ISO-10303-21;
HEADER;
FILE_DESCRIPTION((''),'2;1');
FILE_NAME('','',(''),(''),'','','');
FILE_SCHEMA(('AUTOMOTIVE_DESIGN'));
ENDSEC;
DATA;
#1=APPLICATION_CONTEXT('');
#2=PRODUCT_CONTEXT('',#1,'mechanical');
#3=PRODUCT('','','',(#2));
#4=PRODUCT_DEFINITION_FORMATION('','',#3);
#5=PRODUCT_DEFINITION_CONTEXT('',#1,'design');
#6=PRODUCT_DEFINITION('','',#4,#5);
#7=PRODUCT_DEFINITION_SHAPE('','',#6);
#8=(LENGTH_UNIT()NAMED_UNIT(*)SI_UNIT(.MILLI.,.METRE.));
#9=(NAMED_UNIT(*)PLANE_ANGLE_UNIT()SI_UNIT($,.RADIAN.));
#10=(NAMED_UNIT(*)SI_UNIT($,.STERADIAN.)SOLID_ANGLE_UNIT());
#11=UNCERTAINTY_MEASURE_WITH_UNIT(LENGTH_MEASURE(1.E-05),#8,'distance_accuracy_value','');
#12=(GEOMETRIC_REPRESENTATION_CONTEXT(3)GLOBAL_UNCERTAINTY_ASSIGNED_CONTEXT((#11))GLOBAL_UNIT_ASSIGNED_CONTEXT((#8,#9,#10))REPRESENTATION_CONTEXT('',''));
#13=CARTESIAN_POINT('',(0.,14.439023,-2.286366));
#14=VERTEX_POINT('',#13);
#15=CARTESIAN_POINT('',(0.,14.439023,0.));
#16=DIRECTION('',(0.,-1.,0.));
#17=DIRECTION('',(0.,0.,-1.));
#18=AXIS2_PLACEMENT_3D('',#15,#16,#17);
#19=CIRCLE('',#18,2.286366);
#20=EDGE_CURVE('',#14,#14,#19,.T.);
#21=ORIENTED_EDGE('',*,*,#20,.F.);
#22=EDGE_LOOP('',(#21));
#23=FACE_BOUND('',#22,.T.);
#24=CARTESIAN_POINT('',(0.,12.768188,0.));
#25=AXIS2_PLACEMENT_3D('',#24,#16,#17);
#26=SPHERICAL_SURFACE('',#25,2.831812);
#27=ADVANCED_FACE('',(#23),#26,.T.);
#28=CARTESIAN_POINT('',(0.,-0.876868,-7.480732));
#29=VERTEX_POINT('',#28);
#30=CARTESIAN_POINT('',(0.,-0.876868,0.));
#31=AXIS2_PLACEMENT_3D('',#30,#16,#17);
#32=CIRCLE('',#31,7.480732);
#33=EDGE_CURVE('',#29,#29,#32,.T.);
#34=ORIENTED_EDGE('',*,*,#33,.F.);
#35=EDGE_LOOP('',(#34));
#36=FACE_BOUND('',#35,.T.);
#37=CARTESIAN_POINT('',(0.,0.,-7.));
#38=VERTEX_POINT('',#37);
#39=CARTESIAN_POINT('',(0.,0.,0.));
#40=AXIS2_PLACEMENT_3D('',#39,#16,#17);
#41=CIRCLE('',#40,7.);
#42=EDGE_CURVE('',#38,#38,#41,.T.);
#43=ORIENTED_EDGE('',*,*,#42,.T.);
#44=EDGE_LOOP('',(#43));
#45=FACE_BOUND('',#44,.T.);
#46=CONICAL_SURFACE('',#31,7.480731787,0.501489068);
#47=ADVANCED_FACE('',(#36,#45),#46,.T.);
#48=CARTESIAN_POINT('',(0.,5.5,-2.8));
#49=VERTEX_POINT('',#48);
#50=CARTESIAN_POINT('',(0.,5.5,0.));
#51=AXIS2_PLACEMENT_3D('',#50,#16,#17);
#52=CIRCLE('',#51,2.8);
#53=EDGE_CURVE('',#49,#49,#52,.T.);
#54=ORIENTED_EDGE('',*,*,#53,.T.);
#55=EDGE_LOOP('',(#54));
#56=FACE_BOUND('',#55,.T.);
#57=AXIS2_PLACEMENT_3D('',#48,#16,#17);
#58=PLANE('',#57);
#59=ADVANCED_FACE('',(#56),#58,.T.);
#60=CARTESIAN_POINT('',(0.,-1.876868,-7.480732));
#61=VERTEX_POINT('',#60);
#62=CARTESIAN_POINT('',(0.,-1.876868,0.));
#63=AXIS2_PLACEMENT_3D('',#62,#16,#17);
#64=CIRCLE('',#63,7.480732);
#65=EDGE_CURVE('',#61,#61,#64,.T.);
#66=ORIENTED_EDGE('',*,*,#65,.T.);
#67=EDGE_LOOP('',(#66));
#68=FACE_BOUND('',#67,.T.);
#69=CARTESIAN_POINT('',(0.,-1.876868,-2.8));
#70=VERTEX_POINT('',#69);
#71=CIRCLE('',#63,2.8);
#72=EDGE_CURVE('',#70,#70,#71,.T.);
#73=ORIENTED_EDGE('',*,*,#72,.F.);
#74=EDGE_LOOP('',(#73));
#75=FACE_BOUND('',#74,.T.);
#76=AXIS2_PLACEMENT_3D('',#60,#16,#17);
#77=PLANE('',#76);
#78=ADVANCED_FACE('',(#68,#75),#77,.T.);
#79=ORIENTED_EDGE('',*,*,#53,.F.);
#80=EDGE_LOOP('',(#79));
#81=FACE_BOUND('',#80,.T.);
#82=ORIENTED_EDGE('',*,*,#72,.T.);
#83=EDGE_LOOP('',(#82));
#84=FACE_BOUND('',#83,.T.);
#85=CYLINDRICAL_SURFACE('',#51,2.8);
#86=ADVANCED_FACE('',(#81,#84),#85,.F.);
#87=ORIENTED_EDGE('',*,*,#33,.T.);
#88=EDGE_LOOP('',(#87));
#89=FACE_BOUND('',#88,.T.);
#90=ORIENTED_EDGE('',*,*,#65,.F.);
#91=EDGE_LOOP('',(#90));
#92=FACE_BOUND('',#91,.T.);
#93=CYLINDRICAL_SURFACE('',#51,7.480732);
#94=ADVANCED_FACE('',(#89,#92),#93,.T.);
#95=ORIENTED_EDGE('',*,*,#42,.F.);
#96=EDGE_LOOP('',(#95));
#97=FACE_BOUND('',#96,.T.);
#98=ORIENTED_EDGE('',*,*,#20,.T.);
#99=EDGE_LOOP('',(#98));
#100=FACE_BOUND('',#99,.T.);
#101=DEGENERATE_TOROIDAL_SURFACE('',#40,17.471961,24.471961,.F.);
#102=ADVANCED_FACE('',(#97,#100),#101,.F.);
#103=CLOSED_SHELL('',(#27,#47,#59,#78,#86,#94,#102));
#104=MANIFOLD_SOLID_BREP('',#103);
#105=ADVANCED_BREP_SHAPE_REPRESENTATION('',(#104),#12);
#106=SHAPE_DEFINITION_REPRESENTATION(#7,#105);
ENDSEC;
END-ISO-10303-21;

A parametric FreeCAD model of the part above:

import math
import FreeCAD as App
import Part
import Sketcher

V = App.Vector

doc = App.newDocument("Part")
body = doc.addObject("PartDesign::Body", "Body")

sketch1 = doc.addObject("Sketcher::SketchObject", "Sketch")
body.addObject(sketch1)
sketch1.AttachmentSupport = (doc.YZ_Plane, [""])
sketch1.MapMode = "FlatFace"
sketch1.addGeometry([
    Part.LineSegment(V(5.5, 0, 0), V(5.5, -2.8, 0)),
    Part.LineSegment(V(5.5, -2.8, 0), V(-1.9, -2.8, 0)),
    Part.LineSegment(V(-1.9, -2.8, 0), V(-1.9, -7.5, 0)),
    Part.LineSegment(V(-1.9, -7.5, 0), V(-0.9, -7.5, 0)),
    Part.LineSegment(V(-0.9, -7.5, 0), V(0, -7, 0)),
    Part.ArcOfCircle(Part.Circle(V(0, 17.5, 0), V(0, 0, 1), 24.5), math.radians(-90), math.radians(-54)),
    Part.ArcOfCircle(Part.Circle(V(12.8, 0, 0), V(0, 0, 1), 2.8), math.radians(-54), math.radians(0)),
    Part.LineSegment(V(15.6, 0, 0), V(5.5, 0, 0)),
], False)
sketch1.addConstraint([
    Sketcher.Constraint("Coincident", 0, 2, 1, 1),
    Sketcher.Constraint("Coincident", 1, 2, 2, 1),
    Sketcher.Constraint("Coincident", 2, 2, 3, 1),
    Sketcher.Constraint("Coincident", 3, 2, 4, 1),
    Sketcher.Constraint("Coincident", 4, 2, 5, 1),
    Sketcher.Constraint("Tangent", 5, 2, 6, 1),
    Sketcher.Constraint("Coincident", 6, 2, 7, 1),
    Sketcher.Constraint("Coincident", 7, 2, 0, 1),
    Sketcher.Constraint("Vertical", 0),
    Sketcher.Constraint("Horizontal", 1),
    Sketcher.Constraint("Vertical", 2),
    Sketcher.Constraint("Horizontal", 3),
    Sketcher.Constraint("Horizontal", 7),
    Sketcher.Constraint("PointOnObject", 5, 3, -2),
    Sketcher.Constraint("PointOnObject", 6, 3, -1),
    Sketcher.Constraint("PointOnObject", 4, 2, -2),
    Sketcher.Constraint("PointOnObject", 6, 2, -1),
    Sketcher.Constraint("DistanceX", 3, 1, 3, 2, 1.0),
    Sketcher.Constraint("Distance", 4, 1.0),
    Sketcher.Constraint("DistanceX", 7, 2, 7, 1, 10.1),
    Sketcher.Constraint("DistanceY", 0, 2, 0, 1, 2.8),
    Sketcher.Constraint("DistanceY", 4, 2, -1, 1, 7.0),
    Sketcher.Constraint("DistanceX", -1, 1, 0, 2, 5.5),
    Sketcher.Constraint("Radius", 5, 24.471961),
    Sketcher.Constraint("DistanceY", 2, 2, 2, 1, 4.680732),
])
revolution = doc.addObject("PartDesign::Revolution", "Revolution")
body.addObject(revolution)
revolution.Profile = sketch1
revolution.ReferenceAxis = (sketch1, ["H_Axis"])
revolution.Angle = 360

doc.recompute()
